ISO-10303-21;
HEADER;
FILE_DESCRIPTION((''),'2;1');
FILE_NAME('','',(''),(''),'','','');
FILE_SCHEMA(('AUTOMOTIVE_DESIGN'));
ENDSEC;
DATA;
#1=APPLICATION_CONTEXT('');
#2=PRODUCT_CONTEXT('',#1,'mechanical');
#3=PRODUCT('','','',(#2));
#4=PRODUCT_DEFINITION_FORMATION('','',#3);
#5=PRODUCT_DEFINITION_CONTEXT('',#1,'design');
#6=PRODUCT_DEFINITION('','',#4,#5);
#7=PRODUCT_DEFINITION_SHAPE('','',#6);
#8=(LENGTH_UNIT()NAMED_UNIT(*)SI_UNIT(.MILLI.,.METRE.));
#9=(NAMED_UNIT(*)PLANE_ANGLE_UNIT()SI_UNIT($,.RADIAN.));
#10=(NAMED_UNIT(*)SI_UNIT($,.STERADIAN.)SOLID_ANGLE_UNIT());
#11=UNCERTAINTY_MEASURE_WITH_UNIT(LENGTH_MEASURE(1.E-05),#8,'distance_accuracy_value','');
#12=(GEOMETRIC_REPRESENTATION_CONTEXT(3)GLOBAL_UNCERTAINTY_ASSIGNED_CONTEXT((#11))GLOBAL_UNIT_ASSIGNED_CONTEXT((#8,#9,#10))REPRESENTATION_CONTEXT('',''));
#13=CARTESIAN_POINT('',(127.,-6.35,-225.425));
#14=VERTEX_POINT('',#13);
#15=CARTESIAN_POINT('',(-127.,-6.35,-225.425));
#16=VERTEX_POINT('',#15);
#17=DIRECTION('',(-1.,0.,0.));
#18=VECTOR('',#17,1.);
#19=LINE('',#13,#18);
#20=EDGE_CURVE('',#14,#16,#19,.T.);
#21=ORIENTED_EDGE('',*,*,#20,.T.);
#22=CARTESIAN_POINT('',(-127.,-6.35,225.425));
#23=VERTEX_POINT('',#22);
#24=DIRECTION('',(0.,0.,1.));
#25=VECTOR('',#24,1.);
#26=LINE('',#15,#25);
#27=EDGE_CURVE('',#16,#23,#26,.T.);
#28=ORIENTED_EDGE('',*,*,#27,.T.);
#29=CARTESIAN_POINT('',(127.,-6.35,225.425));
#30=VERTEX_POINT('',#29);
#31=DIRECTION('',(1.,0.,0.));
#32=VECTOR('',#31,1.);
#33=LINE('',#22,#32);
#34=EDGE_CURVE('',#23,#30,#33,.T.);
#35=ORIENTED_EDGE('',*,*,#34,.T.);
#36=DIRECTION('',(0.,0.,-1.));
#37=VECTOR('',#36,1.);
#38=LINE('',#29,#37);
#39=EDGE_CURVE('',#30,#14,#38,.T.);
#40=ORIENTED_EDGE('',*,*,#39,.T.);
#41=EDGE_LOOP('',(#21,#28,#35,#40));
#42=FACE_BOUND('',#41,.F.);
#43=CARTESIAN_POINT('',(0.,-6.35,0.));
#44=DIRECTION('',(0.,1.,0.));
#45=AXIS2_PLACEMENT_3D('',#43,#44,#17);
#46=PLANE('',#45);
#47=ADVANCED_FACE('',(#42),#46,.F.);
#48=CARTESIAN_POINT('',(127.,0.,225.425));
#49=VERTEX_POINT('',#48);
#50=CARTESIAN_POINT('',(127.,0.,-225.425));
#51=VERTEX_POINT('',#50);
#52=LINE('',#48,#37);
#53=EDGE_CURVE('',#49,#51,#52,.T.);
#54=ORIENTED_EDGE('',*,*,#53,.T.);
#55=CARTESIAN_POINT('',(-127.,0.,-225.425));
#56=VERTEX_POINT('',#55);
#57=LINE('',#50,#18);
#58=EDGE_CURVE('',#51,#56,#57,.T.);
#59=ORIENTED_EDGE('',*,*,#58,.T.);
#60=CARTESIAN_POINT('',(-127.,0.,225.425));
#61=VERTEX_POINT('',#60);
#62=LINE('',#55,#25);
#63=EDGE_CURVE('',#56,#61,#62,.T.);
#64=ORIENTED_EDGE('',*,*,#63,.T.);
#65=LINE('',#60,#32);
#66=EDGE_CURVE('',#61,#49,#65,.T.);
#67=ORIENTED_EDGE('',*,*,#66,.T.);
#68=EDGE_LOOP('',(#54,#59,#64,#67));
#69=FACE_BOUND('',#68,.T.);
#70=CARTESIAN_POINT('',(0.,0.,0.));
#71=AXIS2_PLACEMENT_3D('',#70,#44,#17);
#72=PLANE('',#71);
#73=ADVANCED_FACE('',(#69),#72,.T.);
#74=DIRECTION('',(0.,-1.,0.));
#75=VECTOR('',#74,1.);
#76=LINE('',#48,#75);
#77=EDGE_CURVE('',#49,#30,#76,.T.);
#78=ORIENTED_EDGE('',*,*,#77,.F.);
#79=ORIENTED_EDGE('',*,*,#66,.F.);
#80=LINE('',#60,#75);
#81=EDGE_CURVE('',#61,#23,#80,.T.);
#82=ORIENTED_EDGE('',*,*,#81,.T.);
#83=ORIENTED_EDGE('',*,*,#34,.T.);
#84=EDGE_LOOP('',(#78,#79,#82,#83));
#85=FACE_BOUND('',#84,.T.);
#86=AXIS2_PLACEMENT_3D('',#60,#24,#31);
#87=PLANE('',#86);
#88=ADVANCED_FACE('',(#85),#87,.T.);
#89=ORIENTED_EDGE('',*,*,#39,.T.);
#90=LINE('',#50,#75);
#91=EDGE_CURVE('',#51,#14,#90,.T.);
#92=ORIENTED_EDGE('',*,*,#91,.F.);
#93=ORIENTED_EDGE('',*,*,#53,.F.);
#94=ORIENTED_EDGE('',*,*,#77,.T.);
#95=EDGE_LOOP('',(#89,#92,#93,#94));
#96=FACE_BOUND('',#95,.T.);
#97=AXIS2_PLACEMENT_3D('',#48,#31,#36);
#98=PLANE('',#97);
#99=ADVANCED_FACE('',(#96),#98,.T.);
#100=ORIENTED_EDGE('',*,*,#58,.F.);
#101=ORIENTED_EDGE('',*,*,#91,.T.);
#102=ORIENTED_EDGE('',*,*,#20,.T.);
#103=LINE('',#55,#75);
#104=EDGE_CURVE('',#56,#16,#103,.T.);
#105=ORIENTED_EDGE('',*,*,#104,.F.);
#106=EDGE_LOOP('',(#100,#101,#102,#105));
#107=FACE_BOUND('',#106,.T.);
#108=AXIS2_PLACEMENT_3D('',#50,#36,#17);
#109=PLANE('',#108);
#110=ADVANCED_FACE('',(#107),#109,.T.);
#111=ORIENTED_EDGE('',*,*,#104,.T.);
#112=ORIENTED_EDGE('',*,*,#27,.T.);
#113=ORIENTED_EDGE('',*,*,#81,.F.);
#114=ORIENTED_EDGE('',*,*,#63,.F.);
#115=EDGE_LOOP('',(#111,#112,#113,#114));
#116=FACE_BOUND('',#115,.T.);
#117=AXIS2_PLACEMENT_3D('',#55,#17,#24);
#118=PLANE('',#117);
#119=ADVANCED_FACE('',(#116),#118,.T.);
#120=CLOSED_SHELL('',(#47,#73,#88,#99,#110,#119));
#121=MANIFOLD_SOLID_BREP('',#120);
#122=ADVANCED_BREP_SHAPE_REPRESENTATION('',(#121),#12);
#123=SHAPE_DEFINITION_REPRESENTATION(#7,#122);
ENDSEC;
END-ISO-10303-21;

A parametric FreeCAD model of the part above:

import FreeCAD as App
import Part
import Sketcher
Q = App.Units.Quantity

doc = App.newDocument("Part")
body = doc.addObject("PartDesign::Body", "Body")

sketch1 = doc.addObject("Sketcher::SketchObject", "Sketch")
body.addObject(sketch1)
sketch1.AttachmentSupport = (doc.XZ_Plane, [""])
sketch1.MapMode = "FlatFace"
sketch1.addGeometry([
    Part.LineSegment(App.Vector(-127, -225.425, 0), App.Vector(-127, 225.425, 0)),
    Part.LineSegment(App.Vector(-127, 225.425, 0), App.Vector(127, 225.425, 0)),
    Part.LineSegment(App.Vector(127, 225.425, 0), App.Vector(127, -225.425, 0)),
    Part.LineSegment(App.Vector(127, -225.425, 0), App.Vector(-127, -225.425, 0)),
], False)
sketch1.addConstraint([
    Sketcher.Constraint("Coincident", 0, 2, 1, 1),
    Sketcher.Constraint("Coincident", 1, 2, 2, 1),
    Sketcher.Constraint("Coincident", 2, 2, 3, 1),
    Sketcher.Constraint("Coincident", 3, 2, 0, 1),
    Sketcher.Constraint("Vertical", 0),
    Sketcher.Constraint("Horizontal", 1),
    Sketcher.Constraint("Vertical", 2),
    Sketcher.Constraint("Horizontal", 3),
    Sketcher.Constraint("Symmetric", 0, 2, 2, 2, -1, 1),
    Sketcher.Constraint("DistanceX", 1, 1, 1, 2, Q("10 in")),
    Sketcher.Constraint("DistanceY", 0, 1, 0, 2, Q("17.75 in")),
])
pad1 = doc.addObject("PartDesign::Pad", "Pad")
body.addObject(pad1)
pad1.Profile = sketch1
pad1.Length = Q("0.25 in")

doc.recompute()
